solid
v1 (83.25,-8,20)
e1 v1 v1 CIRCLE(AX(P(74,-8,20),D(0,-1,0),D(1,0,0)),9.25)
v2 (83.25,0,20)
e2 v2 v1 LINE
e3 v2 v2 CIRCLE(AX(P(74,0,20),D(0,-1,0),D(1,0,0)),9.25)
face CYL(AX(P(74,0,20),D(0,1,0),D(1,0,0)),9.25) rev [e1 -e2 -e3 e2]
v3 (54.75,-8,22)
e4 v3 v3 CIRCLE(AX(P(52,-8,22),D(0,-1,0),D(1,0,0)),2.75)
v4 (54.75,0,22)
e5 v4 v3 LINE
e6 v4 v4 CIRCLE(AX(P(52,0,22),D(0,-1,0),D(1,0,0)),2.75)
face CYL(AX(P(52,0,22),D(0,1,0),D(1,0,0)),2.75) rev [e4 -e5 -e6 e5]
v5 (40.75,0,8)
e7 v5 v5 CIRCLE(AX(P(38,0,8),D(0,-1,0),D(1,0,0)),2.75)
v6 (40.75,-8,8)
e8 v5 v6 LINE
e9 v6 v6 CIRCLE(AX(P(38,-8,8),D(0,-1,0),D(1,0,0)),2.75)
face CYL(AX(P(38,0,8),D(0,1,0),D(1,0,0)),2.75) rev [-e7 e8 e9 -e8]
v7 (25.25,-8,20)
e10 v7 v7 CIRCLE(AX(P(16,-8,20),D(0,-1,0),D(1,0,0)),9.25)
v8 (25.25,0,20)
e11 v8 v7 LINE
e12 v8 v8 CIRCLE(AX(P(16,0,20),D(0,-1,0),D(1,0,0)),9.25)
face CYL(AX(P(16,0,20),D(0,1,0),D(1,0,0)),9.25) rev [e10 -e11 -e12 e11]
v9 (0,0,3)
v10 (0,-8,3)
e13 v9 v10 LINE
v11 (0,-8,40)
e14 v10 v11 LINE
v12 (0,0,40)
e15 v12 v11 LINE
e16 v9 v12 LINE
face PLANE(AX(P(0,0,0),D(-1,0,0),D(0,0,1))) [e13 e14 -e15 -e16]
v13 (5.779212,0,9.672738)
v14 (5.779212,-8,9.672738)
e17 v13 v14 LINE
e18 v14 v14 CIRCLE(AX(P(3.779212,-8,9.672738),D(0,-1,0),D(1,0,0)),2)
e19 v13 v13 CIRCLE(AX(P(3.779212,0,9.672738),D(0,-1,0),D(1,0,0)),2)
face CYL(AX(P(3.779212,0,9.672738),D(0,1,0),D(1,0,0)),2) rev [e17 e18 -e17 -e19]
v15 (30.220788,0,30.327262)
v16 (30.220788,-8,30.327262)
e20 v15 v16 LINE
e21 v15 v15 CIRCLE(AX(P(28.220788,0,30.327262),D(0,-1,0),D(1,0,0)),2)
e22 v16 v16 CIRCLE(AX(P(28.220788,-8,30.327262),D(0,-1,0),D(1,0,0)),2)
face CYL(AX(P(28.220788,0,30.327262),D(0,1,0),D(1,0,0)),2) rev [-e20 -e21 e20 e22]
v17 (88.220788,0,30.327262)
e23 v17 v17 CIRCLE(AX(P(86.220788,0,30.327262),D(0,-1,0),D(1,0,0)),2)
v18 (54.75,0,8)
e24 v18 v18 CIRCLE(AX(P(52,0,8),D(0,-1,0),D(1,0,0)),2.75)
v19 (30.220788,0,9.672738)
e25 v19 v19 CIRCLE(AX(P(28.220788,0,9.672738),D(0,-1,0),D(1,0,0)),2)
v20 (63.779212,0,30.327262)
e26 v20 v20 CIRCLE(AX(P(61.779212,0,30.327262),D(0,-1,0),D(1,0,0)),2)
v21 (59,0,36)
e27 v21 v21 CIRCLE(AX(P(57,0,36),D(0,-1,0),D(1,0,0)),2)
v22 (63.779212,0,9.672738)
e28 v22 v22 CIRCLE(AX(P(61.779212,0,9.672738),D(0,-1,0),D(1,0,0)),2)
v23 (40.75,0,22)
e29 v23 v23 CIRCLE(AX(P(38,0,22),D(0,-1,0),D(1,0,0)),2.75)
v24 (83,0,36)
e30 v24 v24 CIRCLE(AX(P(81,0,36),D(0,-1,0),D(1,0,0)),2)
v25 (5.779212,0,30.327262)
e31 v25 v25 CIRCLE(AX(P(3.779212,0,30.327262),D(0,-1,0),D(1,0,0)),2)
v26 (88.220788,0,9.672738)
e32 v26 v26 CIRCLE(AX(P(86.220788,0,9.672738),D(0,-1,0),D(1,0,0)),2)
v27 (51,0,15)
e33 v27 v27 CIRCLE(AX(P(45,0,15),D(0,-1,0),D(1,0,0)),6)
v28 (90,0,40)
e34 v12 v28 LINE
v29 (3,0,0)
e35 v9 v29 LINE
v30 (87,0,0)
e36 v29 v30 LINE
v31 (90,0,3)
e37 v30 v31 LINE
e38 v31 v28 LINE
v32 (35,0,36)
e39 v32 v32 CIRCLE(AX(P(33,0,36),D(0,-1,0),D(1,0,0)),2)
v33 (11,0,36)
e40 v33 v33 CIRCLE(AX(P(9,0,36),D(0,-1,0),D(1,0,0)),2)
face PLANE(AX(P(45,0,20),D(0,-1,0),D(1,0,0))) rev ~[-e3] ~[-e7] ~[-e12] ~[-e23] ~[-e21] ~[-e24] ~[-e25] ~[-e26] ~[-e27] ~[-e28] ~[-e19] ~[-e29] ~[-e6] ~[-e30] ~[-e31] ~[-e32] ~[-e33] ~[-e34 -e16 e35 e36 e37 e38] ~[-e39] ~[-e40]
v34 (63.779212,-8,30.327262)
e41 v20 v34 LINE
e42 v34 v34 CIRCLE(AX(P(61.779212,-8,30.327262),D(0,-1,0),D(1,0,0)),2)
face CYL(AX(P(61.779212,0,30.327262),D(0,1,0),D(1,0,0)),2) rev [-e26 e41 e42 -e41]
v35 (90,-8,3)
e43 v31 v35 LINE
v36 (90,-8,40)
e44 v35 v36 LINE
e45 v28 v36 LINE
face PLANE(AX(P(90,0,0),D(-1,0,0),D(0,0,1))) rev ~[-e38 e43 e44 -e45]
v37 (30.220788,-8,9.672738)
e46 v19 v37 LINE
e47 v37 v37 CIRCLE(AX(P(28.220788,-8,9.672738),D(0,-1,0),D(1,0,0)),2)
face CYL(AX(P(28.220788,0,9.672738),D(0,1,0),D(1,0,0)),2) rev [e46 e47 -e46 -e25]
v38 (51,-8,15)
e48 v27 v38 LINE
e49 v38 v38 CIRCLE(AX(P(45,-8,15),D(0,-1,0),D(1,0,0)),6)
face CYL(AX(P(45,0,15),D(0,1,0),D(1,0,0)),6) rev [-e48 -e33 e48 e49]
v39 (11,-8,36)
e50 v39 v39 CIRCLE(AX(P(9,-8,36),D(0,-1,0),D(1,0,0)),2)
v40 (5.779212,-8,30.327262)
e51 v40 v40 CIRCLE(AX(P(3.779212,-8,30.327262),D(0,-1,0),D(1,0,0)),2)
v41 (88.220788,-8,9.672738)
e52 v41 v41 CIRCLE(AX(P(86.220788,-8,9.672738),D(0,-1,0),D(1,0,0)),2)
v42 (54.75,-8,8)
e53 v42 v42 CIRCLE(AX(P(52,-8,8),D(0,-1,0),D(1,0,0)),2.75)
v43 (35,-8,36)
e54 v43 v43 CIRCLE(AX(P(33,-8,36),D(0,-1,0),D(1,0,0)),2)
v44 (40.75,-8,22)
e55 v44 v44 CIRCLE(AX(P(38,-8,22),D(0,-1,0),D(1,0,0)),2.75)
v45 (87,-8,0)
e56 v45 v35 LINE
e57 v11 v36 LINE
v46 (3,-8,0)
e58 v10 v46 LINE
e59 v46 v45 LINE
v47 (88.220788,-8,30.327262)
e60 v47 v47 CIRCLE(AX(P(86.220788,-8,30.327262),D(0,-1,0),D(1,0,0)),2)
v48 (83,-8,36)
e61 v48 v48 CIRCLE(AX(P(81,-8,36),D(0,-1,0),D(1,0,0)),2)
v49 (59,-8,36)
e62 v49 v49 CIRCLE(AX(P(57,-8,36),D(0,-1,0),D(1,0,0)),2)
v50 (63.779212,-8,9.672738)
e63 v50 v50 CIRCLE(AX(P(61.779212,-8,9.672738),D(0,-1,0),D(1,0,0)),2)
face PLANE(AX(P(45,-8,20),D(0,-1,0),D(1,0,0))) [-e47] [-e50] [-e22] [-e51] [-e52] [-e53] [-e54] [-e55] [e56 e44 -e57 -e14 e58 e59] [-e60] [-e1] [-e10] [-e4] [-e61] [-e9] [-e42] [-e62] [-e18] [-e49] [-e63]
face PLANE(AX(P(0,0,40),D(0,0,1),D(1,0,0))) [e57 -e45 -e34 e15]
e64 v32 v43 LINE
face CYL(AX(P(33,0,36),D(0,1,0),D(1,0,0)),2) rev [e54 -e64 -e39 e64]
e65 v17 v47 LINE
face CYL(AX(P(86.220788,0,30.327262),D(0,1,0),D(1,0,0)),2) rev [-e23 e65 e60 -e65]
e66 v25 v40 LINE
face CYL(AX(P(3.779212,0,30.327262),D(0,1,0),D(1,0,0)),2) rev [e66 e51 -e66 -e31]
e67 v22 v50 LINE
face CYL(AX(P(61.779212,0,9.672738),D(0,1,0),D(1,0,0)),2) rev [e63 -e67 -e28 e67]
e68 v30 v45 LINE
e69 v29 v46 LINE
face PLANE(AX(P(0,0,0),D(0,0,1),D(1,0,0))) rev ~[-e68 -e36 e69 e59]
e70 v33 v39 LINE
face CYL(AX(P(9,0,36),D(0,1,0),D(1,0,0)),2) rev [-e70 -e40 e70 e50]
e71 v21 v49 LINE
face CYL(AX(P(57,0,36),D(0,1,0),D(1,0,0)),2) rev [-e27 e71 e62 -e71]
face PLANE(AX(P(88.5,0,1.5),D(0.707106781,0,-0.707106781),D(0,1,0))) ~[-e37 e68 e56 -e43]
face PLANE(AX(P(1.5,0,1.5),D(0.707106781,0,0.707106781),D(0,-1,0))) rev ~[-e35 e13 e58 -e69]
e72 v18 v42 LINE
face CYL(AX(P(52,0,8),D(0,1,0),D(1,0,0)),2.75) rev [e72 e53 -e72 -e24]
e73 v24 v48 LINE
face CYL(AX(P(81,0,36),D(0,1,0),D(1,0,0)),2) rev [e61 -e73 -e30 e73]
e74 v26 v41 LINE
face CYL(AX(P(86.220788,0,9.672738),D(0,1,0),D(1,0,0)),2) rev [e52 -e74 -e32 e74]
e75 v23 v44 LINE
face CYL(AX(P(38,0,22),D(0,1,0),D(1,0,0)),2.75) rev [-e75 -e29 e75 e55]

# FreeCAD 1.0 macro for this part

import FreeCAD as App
import Part
import Sketcher
Q = App.Units.Quantity


def edges_at(feature, points):
    """Names of the edges that pass closest to the given points."""
    edges = feature.Shape.Edges
    near = lambda p: min(range(len(edges)), key=lambda i: edges[i].distToShape(Part.Vertex(*p))[0])
    return sorted({f"Edge{near(p) + 1}" for p in points})

doc = App.newDocument("Part")
params = doc.addObject("Spreadsheet::Sheet", "Params")
for row, (alias, value) in enumerate([
    ("sketch1_diameter", "4 mm"),
    ("sketch1_diameter2", "12 mm"),
    ("sketch1_diameter3", "5.5 mm"),
    ("sketch1_diameter4", "18.5 mm"),
    ("sketch1_width", "90 mm"),
    ("pad1_length", "8 mm"),
    ("chamfer_size", "3 mm"),
], start=1):
    params.set(f"A{row}", alias)
    params.set(f"B{row}", "=" + value)
    params.setAlias(f"B{row}", alias)

body = doc.addObject("PartDesign::Body", "Body")

# Sketch on XZ plane
sketch1 = body.newObject("Sketcher::SketchObject", "Sketch")
sketch1.AttachmentSupport = (doc.getObject("XZ_Plane"), [""])
sketch1.MapMode = "FlatFace"
sketch1.addGeometry([
    Part.LineSegment(App.Vector(0, 40, 0), App.Vector(0, 0, 0)),  # 0
    Part.LineSegment(App.Vector(0, 0, 0), App.Vector(90, 0, 0)),  # 1
    Part.LineSegment(App.Vector(90, 0, 0), App.Vector(90, 40, 0)),  # 2
    Part.LineSegment(App.Vector(90, 40, 0), App.Vector(0, 40, 0)),  # 3
    Part.Circle(App.Vector(3.779212, 9.672738, 0), App.Vector(0, 0, 1), 2),  # 4
    Part.Circle(App.Vector(38, 8, 0), App.Vector(0, 0, 1), 2.75),  # 5
    Part.Circle(App.Vector(28.220788, 9.672738, 0), App.Vector(0, 0, 1), 2),  # 6
    Part.Circle(App.Vector(16, 20, 0), App.Vector(0, 0, 1), 9.25),  # 7
    Part.Circle(App.Vector(52, 8, 0), App.Vector(0, 0, 1), 2.75),  # 8
    Part.Circle(App.Vector(61.779212, 9.672738, 0), App.Vector(0, 0, 1), 2),  # 9
    Part.Circle(App.Vector(86.220788, 9.672738, 0), App.Vector(0, 0, 1), 2),  # 10
    Part.Circle(App.Vector(45, 15, 0), App.Vector(0, 0, 1), 6),  # 11
    Part.Circle(App.Vector(74, 20, 0), App.Vector(0, 0, 1), 9.25),  # 12
    Part.Circle(App.Vector(38, 22, 0), App.Vector(0, 0, 1), 2.75),  # 13
    Part.Circle(App.Vector(3.779212, 30.327262, 0), App.Vector(0, 0, 1), 2),  # 14
    Part.Circle(App.Vector(9, 36, 0), App.Vector(0, 0, 1), 2),  # 15
    Part.Circle(App.Vector(28.220788, 30.327262, 0), App.Vector(0, 0, 1), 2),  # 16
    Part.Circle(App.Vector(33, 36, 0), App.Vector(0, 0, 1), 2),  # 17
    Part.Circle(App.Vector(52, 22, 0), App.Vector(0, 0, 1), 2.75),  # 18
    Part.Circle(App.Vector(61.779212, 30.327262, 0), App.Vector(0, 0, 1), 2),  # 19
    Part.Circle(App.Vector(57, 36, 0), App.Vector(0, 0, 1), 2),  # 20
    Part.Circle(App.Vector(86.220788, 30.327262, 0), App.Vector(0, 0, 1), 2),  # 21
    Part.Circle(App.Vector(81, 36, 0), App.Vector(0, 0, 1), 2),  # 22
], False)
sketch1.addConstraint([
    Sketcher.Constraint("Coincident", 0, 2, 1, 1),
    Sketcher.Constraint("Coincident", 1, 2, 2, 1),
    Sketcher.Constraint("Coincident", 2, 2, 3, 1),
    Sketcher.Constraint("Coincident", 3, 2, 0, 1),
    Sketcher.Constraint("Vertical", 0),
    Sketcher.Constraint("Horizontal", 1),
    Sketcher.Constraint("Vertical", 2),
    Sketcher.Constraint("Horizontal", 3),
    Sketcher.Constraint("Coincident", 0, 2, -1, 1),
    Sketcher.Constraint("Equal", 4, 6),
    Sketcher.Constraint("Equal", 5, 8),
    Sketcher.Constraint("Equal", 6, 9),
    Sketcher.Constraint("Equal", 9, 10),
    Sketcher.Constraint("Equal", 7, 12),
    Sketcher.Constraint("Equal", 8, 13),
    Sketcher.Constraint("Equal", 10, 14),
    Sketcher.Constraint("Equal", 14, 15),
    Sketcher.Constraint("Equal", 15, 16),
    Sketcher.Constraint("Equal", 16, 17),
    Sketcher.Constraint("Equal", 13, 18),
    Sketcher.Constraint("Equal", 17, 19),
    Sketcher.Constraint("Equal", 19, 20),
    Sketcher.Constraint("Equal", 20, 21),
    Sketcher.Constraint("Equal", 21, 22),
    Sketcher.Constraint("Horizontal", 4, 3, 6, 3),
    Sketcher.Constraint("Horizontal", 5, 3, 8, 3),
    Sketcher.Constraint("Horizontal", 6, 3, 9, 3),
    Sketcher.Constraint("Horizontal", 9, 3, 10, 3),
    Sketcher.Constraint("Horizontal", 7, 3, 12, 3),
    Sketcher.Constraint("Horizontal", 14, 3, 16, 3),
    Sketcher.Constraint("Horizontal", 15, 3, 17, 3),
    Sketcher.Constraint("Horizontal", 13, 3, 18, 3),
    Sketcher.Constraint("Horizontal", 16, 3, 19, 3),
    Sketcher.Constraint("Horizontal", 17, 3, 20, 3),
    Sketcher.Constraint("Horizontal", 19, 3, 21, 3),
    Sketcher.Constraint("Horizontal", 20, 3, 22, 3),
    Sketcher.Constraint("Vertical", 5, 3, 13, 3),
    Sketcher.Constraint("Vertical", 4, 3, 14, 3),
    Sketcher.Constraint("Vertical", 6, 3, 16, 3),
    Sketcher.Constraint("Vertical", 8, 3, 18, 3),
    Sketcher.Constraint("Vertical", 9, 3, 19, 3),
    Sketcher.Constraint("Vertical", 10, 3, 21, 3),
    Sketcher.Constraint("Diameter", 4, Q("4 mm")),
    Sketcher.Constraint("Diameter", 11, Q("12 mm")),
    Sketcher.Constraint("Diameter", 5, Q("5.5 mm")),
    Sketcher.Constraint("Diameter", 7, Q("18.5 mm")),
    Sketcher.Constraint("DistanceX", 1, 1, 1, 2, Q("90 mm")),
    Sketcher.Constraint("DistanceY", 0, 2, 0, 1, Q("40 mm")),
    Sketcher.Constraint("DistanceX", -1, 1, 5, 3, Q("38 mm")),
    Sketcher.Constraint("DistanceY", -1, 1, 5, 3, Q("8 mm")),
    Sketcher.Constraint("DistanceX", -1, 1, 7, 3, Q("16 mm")),
    Sketcher.Constraint("DistanceY", -1, 1, 7, 3, Q("20 mm")),
    Sketcher.Constraint("DistanceX", -1, 1, 8, 3, Q("52 mm")),
    Sketcher.Constraint("DistanceX", -1, 1, 11, 3, Q("45 mm")),
    Sketcher.Constraint("DistanceY", -1, 1, 11, 3, Q("15 mm")),
    Sketcher.Constraint("DistanceX", -1, 1, 12, 3, Q("74 mm")),
    Sketcher.Constraint("DistanceY", -1, 1, 13, 3, Q("22 mm")),
    Sketcher.Constraint("DistanceX", -1, 1, 15, 3, Q("9 mm")),
    Sketcher.Constraint("DistanceY", -1, 1, 15, 3, Q("36 mm")),
    Sketcher.Constraint("DistanceX", -1, 1, 17, 3, Q("33 mm")),
    Sketcher.Constraint("DistanceX", -1, 1, 20, 3, Q("57 mm")),
    Sketcher.Constraint("DistanceX", -1, 1, 22, 3, Q("81 mm")),
    Sketcher.Constraint("DistanceX", 4, 3, 9, 3, Q("58 mm")),
    Sketcher.Constraint("DistanceX", 6, 3, 10, 3, Q("58 mm")),
    Sketcher.Constraint("DistanceX", -1, 1, 4, 3, Q("3.779212 mm")),
    Sketcher.Constraint("DistanceY", -1, 1, 4, 3, Q("9.672738 mm")),
    Sketcher.Constraint("DistanceX", -1, 1, 10, 3, Q("86.220788 mm")),
    Sketcher.Constraint("DistanceY", -1, 1, 14, 3, Q("30.327262 mm")),
])
sketch1.setExpression("Constraints[42]", "Params.sketch1_diameter")
sketch1.setExpression("Constraints[43]", "Params.sketch1_diameter2")
sketch1.setExpression("Constraints[44]", "Params.sketch1_diameter3")
sketch1.setExpression("Constraints[45]", "Params.sketch1_diameter4")
sketch1.setExpression("Constraints[46]", "Params.sketch1_width")
pad1 = body.newObject("PartDesign::Pad", "Pad")
pad1.Profile = sketch1
pad1.setExpression("Length", "Params.pad1_length")
doc.recompute()

chamfer = body.newObject("PartDesign::Chamfer", "Chamfer")
chamfer.Base = (pad1, edges_at(pad1, [(0, -4, 0), (90, -4, 0)]))
chamfer.setExpression("Size", "Params.chamfer_size")

doc.recompute()
